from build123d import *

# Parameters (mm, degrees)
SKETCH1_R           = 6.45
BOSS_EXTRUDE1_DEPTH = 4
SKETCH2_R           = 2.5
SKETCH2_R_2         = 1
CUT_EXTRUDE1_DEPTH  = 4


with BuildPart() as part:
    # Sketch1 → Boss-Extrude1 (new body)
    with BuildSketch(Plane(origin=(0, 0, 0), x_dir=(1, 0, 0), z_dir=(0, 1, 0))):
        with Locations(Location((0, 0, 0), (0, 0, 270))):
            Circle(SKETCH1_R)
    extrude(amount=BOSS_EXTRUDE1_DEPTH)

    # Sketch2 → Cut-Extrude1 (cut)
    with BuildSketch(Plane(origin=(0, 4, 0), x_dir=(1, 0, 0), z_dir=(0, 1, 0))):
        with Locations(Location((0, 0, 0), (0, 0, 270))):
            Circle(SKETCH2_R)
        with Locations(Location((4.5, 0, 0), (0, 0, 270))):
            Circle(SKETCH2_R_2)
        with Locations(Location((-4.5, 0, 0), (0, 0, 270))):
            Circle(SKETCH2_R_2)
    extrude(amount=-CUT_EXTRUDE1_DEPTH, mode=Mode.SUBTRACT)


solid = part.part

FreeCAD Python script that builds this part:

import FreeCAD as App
import Part
import Sketcher
Q = App.Units.Quantity

doc = App.newDocument("Part")
body = doc.addObject("PartDesign::Body", "Body")

# Sketch on XZ plane
sketch1 = doc.addObject("Sketcher::SketchObject", "Sketch")
body.addObject(sketch1)
sketch1.AttachmentSupport = (doc.XZ_Plane, [""])
sketch1.MapMode = "FlatFace"
sketch1.addGeometry(Part.Circle(App.Vector(0, 0, 0), App.Vector(0, 0, 1), 6), False)
sketch1.addConstraint([
    Sketcher.Constraint("Coincident", 0, 3, -1, 1),
    Sketcher.Constraint("Diameter", 0, Q("12.9 mm")),
])
pad1 = doc.addObject("PartDesign::Pad", "Pad")
body.addObject(pad1)
pad1.Profile = sketch1
pad1.Length = 4
pad1.Reversed = True

# Sketch on XZ plane
sketch2 = doc.addObject("Sketcher::SketchObject", "Sketch001")
body.addObject(sketch2)
sketch2.AttachmentSupport = (doc.XZ_Plane, [""])
sketch2.MapMode = "FlatFace"
sketch2.AttachmentOffset = App.Placement(App.Vector(0, 0, -4), App.Rotation())
sketch2.addGeometry([
    Part.Circle(App.Vector(0, 0, 0), App.Vector(0, 0, 1), 2.5),
    Part.Circle(App.Vector(4.5, 0, 0), App.Vector(0, 0, 1), 1),
    Part.Circle(App.Vector(-4.5, 0, 0), App.Vector(0, 0, 1), 1),
], False)
sketch2.addConstraint([
    Sketcher.Constraint("Coincident", 0, 3, -1, 1),
    Sketcher.Constraint("Equal", 1, 2),
    Sketcher.Constraint("Symmetric", 1, 3, 2, 3, -1, 1),
    Sketcher.Constraint("PointOnObject", 1, 3, -1),
    Sketcher.Constraint("Diameter", 0, Q("5 mm")),
    Sketcher.Constraint("Diameter", 1, Q("2 mm")),
    Sketcher.Constraint("DistanceX", 2, 3, 1, 3, Q("9 mm")),
])
pocket1 = doc.addObject("PartDesign::Pocket", "Pocket")
body.addObject(pocket1)
pocket1.Profile = sketch2
pocket1.Length = 4
pocket1.Reversed = True

doc.recompute()
